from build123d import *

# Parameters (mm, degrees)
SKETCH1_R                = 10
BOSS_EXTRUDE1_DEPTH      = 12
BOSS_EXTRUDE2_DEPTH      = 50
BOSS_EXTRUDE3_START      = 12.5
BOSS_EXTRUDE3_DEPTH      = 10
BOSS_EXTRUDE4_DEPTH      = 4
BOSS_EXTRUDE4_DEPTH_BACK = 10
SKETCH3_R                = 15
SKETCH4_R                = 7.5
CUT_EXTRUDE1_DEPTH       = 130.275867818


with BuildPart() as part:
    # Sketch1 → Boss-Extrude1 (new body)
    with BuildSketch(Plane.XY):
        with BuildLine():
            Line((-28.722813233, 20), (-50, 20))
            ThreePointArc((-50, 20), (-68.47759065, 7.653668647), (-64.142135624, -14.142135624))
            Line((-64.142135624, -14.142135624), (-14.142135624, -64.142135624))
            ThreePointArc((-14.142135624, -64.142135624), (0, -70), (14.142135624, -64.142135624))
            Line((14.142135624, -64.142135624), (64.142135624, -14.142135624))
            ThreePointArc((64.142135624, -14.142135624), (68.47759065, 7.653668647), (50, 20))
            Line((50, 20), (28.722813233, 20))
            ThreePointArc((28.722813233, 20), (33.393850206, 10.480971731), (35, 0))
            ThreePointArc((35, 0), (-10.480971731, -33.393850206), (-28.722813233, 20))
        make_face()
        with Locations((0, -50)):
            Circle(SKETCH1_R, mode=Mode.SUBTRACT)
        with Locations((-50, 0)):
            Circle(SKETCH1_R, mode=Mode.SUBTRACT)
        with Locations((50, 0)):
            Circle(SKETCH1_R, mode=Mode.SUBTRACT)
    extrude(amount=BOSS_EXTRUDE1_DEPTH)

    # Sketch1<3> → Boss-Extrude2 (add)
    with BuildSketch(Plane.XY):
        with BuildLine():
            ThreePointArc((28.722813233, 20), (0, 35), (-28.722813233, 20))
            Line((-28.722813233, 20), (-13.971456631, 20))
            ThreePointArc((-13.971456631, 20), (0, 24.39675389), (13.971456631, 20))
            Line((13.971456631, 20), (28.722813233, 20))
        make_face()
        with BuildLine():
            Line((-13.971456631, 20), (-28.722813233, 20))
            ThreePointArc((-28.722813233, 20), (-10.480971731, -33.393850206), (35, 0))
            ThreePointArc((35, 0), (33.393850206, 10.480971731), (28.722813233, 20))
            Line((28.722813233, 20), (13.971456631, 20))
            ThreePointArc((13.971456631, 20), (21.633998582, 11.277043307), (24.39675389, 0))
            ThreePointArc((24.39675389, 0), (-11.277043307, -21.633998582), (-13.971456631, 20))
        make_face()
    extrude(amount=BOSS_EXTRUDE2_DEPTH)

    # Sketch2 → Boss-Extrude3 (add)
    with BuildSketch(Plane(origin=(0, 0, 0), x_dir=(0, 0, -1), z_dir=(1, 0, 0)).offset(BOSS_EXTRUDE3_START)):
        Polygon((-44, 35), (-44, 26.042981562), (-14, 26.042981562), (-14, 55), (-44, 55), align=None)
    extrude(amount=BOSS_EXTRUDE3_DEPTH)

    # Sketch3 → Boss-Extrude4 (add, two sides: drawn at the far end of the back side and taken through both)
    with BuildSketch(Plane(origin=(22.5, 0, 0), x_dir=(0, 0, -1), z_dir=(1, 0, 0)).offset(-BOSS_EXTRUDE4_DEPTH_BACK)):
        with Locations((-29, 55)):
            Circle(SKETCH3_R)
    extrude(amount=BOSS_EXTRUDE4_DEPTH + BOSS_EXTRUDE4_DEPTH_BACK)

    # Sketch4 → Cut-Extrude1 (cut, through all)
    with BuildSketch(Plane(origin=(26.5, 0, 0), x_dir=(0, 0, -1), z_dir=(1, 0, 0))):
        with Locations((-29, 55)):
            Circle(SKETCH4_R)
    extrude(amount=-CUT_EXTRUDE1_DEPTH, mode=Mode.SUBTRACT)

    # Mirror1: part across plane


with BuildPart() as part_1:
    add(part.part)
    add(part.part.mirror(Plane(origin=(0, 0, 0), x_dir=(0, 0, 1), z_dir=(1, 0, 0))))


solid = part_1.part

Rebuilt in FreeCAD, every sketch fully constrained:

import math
import FreeCAD as App
import Part
import Sketcher
from FreeCAD import Vector
Q = App.Units.Quantity


def add_polygon(sketch, points):
    """Adds a closed chain of lines whose ends are joined by coincident constraints."""
    first, n = sketch.GeometryCount, len(points)
    for a, b in zip(points, points[1:] + points[:1]):
        sketch.addGeometry(Part.LineSegment(App.Vector(*a, 0), App.Vector(*b, 0)), False)
    for i in range(n):
        sketch.addConstraint(Sketcher.Constraint("Coincident", first + i, 2, first + (i + 1) % n, 1))

doc = App.newDocument("Part")
params = doc.addObject("Spreadsheet::Sheet", "Params")
for row, (alias, value) in enumerate([
    ("sketch1_diameter", "20 mm"),
    ("sketch1_radius", "20 mm"),
    ("sketch1_radius2", "35 mm"),
    ("pad1_length", "12 mm"),
    ("sketch2_radius", "35 mm"),
    ("pad2_length", "50 mm"),
    ("sketch3_height", "30 mm"),
    ("pad3_length", "10 mm"),
    ("sketch4_diameter", "30 mm"),
    ("pad4_length", "4 mm"),
    ("pad4_length2", "10 mm"),
    ("sketch5_diameter", "15 mm"),
], start=1):
    params.set(f"A{row}", alias)
    params.set(f"B{row}", "=" + value)
    params.setAlias(f"B{row}", alias)

body = doc.addObject("PartDesign::Body", "Body")

sketch1 = doc.addObject("Sketcher::SketchObject", "Sketch")
body.addObject(sketch1)
sketch1.AttachmentSupport = (doc.XY_Plane, [""])
sketch1.MapMode = "FlatFace"
sketch1.addGeometry([
    Part.LineSegment(Vector(-28.722813, 20, 0), Vector(-50, 20, 0)),
    Part.ArcOfCircle(Part.Circle(Vector(-50, 0, 0), Vector(0, 0, 1), 20), math.radians(90), math.radians(225)),
    Part.LineSegment(Vector(-64.142136, -14.142136, 0), Vector(-14.142136, -64.142136, 0)),
    Part.ArcOfCircle(Part.Circle(Vector(0, -50, 0), Vector(0, 0, 1), 20), math.radians(-135), math.radians(-45)),
    Part.LineSegment(Vector(14.142136, -64.142136, 0), Vector(64.142136, -14.142136, 0)),
    Part.ArcOfCircle(Part.Circle(Vector(50, 0, 0), Vector(0, 0, 1), 20), math.radians(-45), math.radians(90)),
    Part.LineSegment(Vector(50, 20, 0), Vector(28.722813, 20, 0)),
    Part.ArcOfCircle(Part.Circle(Vector(0, 0, 0), Vector(0, 0, 1), 35), math.radians(0), math.radians(34.849905)),
    Part.ArcOfCircle(Part.Circle(Vector(0, 0, 0), Vector(0, 0, 1), 35), math.radians(145.150095), math.radians(360)),
    Part.Circle(Vector(0, -50, 0), Vector(0, 0, 1), 10),
    Part.Circle(Vector(-50, 0, 0), Vector(0, 0, 1), 10),
    Part.Circle(Vector(50, 0, 0), Vector(0, 0, 1), 10),
], False)
sketch1.addConstraint([
    Sketcher.Constraint("Tangent", 0, 2, 1, 1),
    Sketcher.Constraint("Tangent", 1, 2, 2, 1),
    Sketcher.Constraint("Tangent", 2, 2, 3, 1),
    Sketcher.Constraint("Tangent", 3, 2, 4, 1),
    Sketcher.Constraint("Tangent", 4, 2, 5, 1),
    Sketcher.Constraint("Tangent", 5, 2, 6, 1),
    Sketcher.Constraint("Coincident", 6, 2, 7, 2),
    Sketcher.Constraint("Tangent", 7, 1, 8, 2),
    Sketcher.Constraint("Coincident", 8, 1, 0, 1),
    Sketcher.Constraint("Horizontal", 0),
    Sketcher.Constraint("Horizontal", 6),
    Sketcher.Constraint("Coincident", 7, 3, -1, 1),
    Sketcher.Constraint("Coincident", 9, 3, 3, 3),
    Sketcher.Constraint("Coincident", 10, 3, 1, 3),
    Sketcher.Constraint("Coincident", 11, 3, 5, 3),
    Sketcher.Constraint("Equal", 1, 3),
    Sketcher.Constraint("Equal", 3, 5),
    Sketcher.Constraint("Equal", 7, 8),
    Sketcher.Constraint("Equal", 9, 10),
    Sketcher.Constraint("Equal", 10, 11),
    Sketcher.Constraint("Symmetric", 1, 3, 5, 3, -1, 1),
    Sketcher.Constraint("Symmetric", 2, 2, 3, 2, -2),
    Sketcher.Constraint("PointOnObject", 7, 1, -1),
    Sketcher.Constraint("Perpendicular", 2, 4),
    Sketcher.Constraint("Diameter", 9, Q("20 mm")),
    Sketcher.Constraint("Radius", 1, Q("20 mm")),
    Sketcher.Constraint("Radius", 7, Q("35 mm")),
    Sketcher.Constraint("DistanceX", 1, 3, -1, 1, Q("50 mm")),
])
sketch1.setExpression("Constraints[24]", "Params.sketch1_diameter")
sketch1.setExpression("Constraints[25]", "Params.sketch1_radius")
sketch1.setExpression("Constraints[26]", "Params.sketch1_radius2")
pad1 = doc.addObject("PartDesign::Pad", "Pad")
body.addObject(pad1)
pad1.Profile = sketch1
pad1.setExpression("Length", "Params.pad1_length")

sketch2 = doc.addObject("Sketcher::SketchObject", "Sketch001")
body.addObject(sketch2)
sketch2.AttachmentSupport = (doc.XY_Plane, [""])
sketch2.MapMode = "FlatFace"
sketch2.addGeometry([
    Part.ArcOfCircle(Part.Circle(Vector(0, 0, 0), Vector(0, 0, 1), 35), math.radians(34.849905), math.radians(145.150095)),
    Part.ArcOfCircle(Part.Circle(Vector(0, 0, 0), Vector(0, 0, 1), 35), math.radians(145.150095), math.radians(360)),
    Part.ArcOfCircle(Part.Circle(Vector(0, 0, 0), Vector(0, 0, 1), 35), math.radians(0), math.radians(34.849905)),
    Part.ArcOfCircle(Part.Circle(Vector(0, 0, 0), Vector(0, 0, 1), 24.396754), math.radians(55.062896), math.radians(124.937104)),
    Part.ArcOfCircle(Part.Circle(Vector(0, 0, 0), Vector(0, 0, 1), 24.396754), math.radians(0), math.radians(55.062896)),
    Part.ArcOfCircle(Part.Circle(Vector(0, 0, 0), Vector(0, 0, 1), 24.396754), math.radians(124.937104), math.radians(360)),
], False)
sketch2.addConstraint([
    Sketcher.Constraint("Tangent", 0, 2, 1, 1),
    Sketcher.Constraint("Tangent", 1, 2, 2, 1),
    Sketcher.Constraint("Tangent", 2, 2, 0, 1),
    Sketcher.Constraint("Tangent", 3, 1, 4, 2),
    Sketcher.Constraint("Tangent", 4, 1, 5, 2),
    Sketcher.Constraint("Tangent", 5, 1, 3, 2),
    Sketcher.Constraint("Coincident", 0, 3, -1, 1),
    Sketcher.Constraint("Coincident", 3, 3, -1, 1),
    Sketcher.Constraint("PointOnObject", 1, 2, -1),
    Sketcher.Constraint("PointOnObject", 4, 1, -1),
    Sketcher.Constraint("Horizontal", 0, 2, 2, 2),
    Sketcher.Constraint("Horizontal", 2, 2, 3, 1),
    Sketcher.Constraint("Horizontal", 3, 1, 5, 1),
    Sketcher.Constraint("Radius", 0, Q("35 mm")),
    Sketcher.Constraint("DistanceY", -1, 1, 0, 2, Q("20 mm")),
    Sketcher.Constraint("Radius", 3, Q("24.396754 mm")),
])
sketch2.setExpression("Constraints[13]", "Params.sketch2_radius")
pad2 = doc.addObject("PartDesign::Pad", "Pad001")
body.addObject(pad2)
pad2.Profile = sketch2
pad2.setExpression("Length", "Params.pad2_length")

sketch3 = doc.addObject("Sketcher::SketchObject", "Sketch002")
body.addObject(sketch3)
sketch3.AttachmentSupport = (doc.YZ_Plane, [""])
sketch3.MapMode = "FlatFace"
sketch3.AttachmentOffset = App.Placement(Vector(0, 0, 12.5), App.Rotation())
add_polygon(sketch3, [(26.042982, 44), (26.042982, 14), (55, 14), (55, 44)])
sketch3.addConstraint([
    Sketcher.Constraint("Vertical", 0),
    Sketcher.Constraint("Horizontal", 1),
    Sketcher.Constraint("Vertical", 2),
    Sketcher.Constraint("Horizontal", 3),
    Sketcher.Constraint("DistanceY", 0, 2, 0, 1, Q("30 mm")),
    Sketcher.Constraint("DistanceY", -1, 1, 0, 2, Q("14 mm")),
    Sketcher.Constraint("DistanceX", -1, 1, 1, 2, Q("55 mm")),
    Sketcher.Constraint("DistanceX", 1, 1, 1, 2, Q("28.957018 mm")),
])
sketch3.setExpression("Constraints[8]", "Params.sketch3_height")
pad3 = doc.addObject("PartDesign::Pad", "Pad002")
body.addObject(pad3)
pad3.Profile = sketch3
pad3.setExpression("Length", "Params.pad3_length")

sketch4 = doc.addObject("Sketcher::SketchObject", "Sketch003")
body.addObject(sketch4)
sketch4.AttachmentSupport = (doc.YZ_Plane, [""])
sketch4.MapMode = "FlatFace"
sketch4.AttachmentOffset = App.Placement(Vector(0, 0, 22.5), App.Rotation())
sketch4.addGeometry(Part.Circle(Vector(55, 29, 0), Vector(0, 0, 1), 15), False)
sketch4.addConstraint([
    Sketcher.Constraint("Diameter", 0, Q("30 mm")),
    Sketcher.Constraint("DistanceX", -1, 1, 0, 3, Q("55 mm")),
    Sketcher.Constraint("DistanceY", -1, 1, 0, 3, Q("29 mm")),
])
sketch4.setExpression("Constraints[0]", "Params.sketch4_diameter")
pad4 = doc.addObject("PartDesign::Pad", "Pad003")
body.addObject(pad4)
pad4.Profile = sketch4
pad4.Type = "TwoLengths"
pad4.setExpression("Length", "Params.pad4_length")
pad4.setExpression("Length2", "Params.pad4_length2")

sketch5 = doc.addObject("Sketcher::SketchObject", "Sketch004")
body.addObject(sketch5)
sketch5.AttachmentSupport = (doc.YZ_Plane, [""])
sketch5.MapMode = "FlatFace"
sketch5.AttachmentOffset = App.Placement(Vector(0, 0, 26.5), App.Rotation())
sketch5.addGeometry(Part.Circle(Vector(55, 29, 0), Vector(0, 0, 1), 7.5), False)
sketch5.addConstraint([
    Sketcher.Constraint("Diameter", 0, Q("15 mm")),
    Sketcher.Constraint("DistanceX", -1, 1, 0, 3, Q("55 mm")),
    Sketcher.Constraint("DistanceY", -1, 1, 0, 3, Q("29 mm")),
])
sketch5.setExpression("Constraints[0]", "Params.sketch5_diameter")
pocket1 = doc.addObject("PartDesign::Pocket", "Pocket")
body.addObject(pocket1)
pocket1.Profile = sketch5
pocket1.Type = "ThroughAll"
body2 = doc.addObject("PartDesign::Body", "Body001")
doc.recompute()

body2.BaseFeature = body
doc.recompute()

mirroring = doc.addObject("Part::Mirroring", "Mirroring")
mirroring.Source = body
mirroring.Base = Vector(0, 0, 0)
mirroring.Normal = Vector(1, 0, 0)
body3 = doc.addObject("PartDesign::Body", "Body002")
body3.BaseFeature = mirroring
boolean = doc.addObject("PartDesign::Boolean", "Boolean")
body2.addObject(boolean)
boolean.Type = "Fuse"
boolean.addObjects([body3])
doc.recompute()
mirroring.Visibility = False

doc.recompute()
